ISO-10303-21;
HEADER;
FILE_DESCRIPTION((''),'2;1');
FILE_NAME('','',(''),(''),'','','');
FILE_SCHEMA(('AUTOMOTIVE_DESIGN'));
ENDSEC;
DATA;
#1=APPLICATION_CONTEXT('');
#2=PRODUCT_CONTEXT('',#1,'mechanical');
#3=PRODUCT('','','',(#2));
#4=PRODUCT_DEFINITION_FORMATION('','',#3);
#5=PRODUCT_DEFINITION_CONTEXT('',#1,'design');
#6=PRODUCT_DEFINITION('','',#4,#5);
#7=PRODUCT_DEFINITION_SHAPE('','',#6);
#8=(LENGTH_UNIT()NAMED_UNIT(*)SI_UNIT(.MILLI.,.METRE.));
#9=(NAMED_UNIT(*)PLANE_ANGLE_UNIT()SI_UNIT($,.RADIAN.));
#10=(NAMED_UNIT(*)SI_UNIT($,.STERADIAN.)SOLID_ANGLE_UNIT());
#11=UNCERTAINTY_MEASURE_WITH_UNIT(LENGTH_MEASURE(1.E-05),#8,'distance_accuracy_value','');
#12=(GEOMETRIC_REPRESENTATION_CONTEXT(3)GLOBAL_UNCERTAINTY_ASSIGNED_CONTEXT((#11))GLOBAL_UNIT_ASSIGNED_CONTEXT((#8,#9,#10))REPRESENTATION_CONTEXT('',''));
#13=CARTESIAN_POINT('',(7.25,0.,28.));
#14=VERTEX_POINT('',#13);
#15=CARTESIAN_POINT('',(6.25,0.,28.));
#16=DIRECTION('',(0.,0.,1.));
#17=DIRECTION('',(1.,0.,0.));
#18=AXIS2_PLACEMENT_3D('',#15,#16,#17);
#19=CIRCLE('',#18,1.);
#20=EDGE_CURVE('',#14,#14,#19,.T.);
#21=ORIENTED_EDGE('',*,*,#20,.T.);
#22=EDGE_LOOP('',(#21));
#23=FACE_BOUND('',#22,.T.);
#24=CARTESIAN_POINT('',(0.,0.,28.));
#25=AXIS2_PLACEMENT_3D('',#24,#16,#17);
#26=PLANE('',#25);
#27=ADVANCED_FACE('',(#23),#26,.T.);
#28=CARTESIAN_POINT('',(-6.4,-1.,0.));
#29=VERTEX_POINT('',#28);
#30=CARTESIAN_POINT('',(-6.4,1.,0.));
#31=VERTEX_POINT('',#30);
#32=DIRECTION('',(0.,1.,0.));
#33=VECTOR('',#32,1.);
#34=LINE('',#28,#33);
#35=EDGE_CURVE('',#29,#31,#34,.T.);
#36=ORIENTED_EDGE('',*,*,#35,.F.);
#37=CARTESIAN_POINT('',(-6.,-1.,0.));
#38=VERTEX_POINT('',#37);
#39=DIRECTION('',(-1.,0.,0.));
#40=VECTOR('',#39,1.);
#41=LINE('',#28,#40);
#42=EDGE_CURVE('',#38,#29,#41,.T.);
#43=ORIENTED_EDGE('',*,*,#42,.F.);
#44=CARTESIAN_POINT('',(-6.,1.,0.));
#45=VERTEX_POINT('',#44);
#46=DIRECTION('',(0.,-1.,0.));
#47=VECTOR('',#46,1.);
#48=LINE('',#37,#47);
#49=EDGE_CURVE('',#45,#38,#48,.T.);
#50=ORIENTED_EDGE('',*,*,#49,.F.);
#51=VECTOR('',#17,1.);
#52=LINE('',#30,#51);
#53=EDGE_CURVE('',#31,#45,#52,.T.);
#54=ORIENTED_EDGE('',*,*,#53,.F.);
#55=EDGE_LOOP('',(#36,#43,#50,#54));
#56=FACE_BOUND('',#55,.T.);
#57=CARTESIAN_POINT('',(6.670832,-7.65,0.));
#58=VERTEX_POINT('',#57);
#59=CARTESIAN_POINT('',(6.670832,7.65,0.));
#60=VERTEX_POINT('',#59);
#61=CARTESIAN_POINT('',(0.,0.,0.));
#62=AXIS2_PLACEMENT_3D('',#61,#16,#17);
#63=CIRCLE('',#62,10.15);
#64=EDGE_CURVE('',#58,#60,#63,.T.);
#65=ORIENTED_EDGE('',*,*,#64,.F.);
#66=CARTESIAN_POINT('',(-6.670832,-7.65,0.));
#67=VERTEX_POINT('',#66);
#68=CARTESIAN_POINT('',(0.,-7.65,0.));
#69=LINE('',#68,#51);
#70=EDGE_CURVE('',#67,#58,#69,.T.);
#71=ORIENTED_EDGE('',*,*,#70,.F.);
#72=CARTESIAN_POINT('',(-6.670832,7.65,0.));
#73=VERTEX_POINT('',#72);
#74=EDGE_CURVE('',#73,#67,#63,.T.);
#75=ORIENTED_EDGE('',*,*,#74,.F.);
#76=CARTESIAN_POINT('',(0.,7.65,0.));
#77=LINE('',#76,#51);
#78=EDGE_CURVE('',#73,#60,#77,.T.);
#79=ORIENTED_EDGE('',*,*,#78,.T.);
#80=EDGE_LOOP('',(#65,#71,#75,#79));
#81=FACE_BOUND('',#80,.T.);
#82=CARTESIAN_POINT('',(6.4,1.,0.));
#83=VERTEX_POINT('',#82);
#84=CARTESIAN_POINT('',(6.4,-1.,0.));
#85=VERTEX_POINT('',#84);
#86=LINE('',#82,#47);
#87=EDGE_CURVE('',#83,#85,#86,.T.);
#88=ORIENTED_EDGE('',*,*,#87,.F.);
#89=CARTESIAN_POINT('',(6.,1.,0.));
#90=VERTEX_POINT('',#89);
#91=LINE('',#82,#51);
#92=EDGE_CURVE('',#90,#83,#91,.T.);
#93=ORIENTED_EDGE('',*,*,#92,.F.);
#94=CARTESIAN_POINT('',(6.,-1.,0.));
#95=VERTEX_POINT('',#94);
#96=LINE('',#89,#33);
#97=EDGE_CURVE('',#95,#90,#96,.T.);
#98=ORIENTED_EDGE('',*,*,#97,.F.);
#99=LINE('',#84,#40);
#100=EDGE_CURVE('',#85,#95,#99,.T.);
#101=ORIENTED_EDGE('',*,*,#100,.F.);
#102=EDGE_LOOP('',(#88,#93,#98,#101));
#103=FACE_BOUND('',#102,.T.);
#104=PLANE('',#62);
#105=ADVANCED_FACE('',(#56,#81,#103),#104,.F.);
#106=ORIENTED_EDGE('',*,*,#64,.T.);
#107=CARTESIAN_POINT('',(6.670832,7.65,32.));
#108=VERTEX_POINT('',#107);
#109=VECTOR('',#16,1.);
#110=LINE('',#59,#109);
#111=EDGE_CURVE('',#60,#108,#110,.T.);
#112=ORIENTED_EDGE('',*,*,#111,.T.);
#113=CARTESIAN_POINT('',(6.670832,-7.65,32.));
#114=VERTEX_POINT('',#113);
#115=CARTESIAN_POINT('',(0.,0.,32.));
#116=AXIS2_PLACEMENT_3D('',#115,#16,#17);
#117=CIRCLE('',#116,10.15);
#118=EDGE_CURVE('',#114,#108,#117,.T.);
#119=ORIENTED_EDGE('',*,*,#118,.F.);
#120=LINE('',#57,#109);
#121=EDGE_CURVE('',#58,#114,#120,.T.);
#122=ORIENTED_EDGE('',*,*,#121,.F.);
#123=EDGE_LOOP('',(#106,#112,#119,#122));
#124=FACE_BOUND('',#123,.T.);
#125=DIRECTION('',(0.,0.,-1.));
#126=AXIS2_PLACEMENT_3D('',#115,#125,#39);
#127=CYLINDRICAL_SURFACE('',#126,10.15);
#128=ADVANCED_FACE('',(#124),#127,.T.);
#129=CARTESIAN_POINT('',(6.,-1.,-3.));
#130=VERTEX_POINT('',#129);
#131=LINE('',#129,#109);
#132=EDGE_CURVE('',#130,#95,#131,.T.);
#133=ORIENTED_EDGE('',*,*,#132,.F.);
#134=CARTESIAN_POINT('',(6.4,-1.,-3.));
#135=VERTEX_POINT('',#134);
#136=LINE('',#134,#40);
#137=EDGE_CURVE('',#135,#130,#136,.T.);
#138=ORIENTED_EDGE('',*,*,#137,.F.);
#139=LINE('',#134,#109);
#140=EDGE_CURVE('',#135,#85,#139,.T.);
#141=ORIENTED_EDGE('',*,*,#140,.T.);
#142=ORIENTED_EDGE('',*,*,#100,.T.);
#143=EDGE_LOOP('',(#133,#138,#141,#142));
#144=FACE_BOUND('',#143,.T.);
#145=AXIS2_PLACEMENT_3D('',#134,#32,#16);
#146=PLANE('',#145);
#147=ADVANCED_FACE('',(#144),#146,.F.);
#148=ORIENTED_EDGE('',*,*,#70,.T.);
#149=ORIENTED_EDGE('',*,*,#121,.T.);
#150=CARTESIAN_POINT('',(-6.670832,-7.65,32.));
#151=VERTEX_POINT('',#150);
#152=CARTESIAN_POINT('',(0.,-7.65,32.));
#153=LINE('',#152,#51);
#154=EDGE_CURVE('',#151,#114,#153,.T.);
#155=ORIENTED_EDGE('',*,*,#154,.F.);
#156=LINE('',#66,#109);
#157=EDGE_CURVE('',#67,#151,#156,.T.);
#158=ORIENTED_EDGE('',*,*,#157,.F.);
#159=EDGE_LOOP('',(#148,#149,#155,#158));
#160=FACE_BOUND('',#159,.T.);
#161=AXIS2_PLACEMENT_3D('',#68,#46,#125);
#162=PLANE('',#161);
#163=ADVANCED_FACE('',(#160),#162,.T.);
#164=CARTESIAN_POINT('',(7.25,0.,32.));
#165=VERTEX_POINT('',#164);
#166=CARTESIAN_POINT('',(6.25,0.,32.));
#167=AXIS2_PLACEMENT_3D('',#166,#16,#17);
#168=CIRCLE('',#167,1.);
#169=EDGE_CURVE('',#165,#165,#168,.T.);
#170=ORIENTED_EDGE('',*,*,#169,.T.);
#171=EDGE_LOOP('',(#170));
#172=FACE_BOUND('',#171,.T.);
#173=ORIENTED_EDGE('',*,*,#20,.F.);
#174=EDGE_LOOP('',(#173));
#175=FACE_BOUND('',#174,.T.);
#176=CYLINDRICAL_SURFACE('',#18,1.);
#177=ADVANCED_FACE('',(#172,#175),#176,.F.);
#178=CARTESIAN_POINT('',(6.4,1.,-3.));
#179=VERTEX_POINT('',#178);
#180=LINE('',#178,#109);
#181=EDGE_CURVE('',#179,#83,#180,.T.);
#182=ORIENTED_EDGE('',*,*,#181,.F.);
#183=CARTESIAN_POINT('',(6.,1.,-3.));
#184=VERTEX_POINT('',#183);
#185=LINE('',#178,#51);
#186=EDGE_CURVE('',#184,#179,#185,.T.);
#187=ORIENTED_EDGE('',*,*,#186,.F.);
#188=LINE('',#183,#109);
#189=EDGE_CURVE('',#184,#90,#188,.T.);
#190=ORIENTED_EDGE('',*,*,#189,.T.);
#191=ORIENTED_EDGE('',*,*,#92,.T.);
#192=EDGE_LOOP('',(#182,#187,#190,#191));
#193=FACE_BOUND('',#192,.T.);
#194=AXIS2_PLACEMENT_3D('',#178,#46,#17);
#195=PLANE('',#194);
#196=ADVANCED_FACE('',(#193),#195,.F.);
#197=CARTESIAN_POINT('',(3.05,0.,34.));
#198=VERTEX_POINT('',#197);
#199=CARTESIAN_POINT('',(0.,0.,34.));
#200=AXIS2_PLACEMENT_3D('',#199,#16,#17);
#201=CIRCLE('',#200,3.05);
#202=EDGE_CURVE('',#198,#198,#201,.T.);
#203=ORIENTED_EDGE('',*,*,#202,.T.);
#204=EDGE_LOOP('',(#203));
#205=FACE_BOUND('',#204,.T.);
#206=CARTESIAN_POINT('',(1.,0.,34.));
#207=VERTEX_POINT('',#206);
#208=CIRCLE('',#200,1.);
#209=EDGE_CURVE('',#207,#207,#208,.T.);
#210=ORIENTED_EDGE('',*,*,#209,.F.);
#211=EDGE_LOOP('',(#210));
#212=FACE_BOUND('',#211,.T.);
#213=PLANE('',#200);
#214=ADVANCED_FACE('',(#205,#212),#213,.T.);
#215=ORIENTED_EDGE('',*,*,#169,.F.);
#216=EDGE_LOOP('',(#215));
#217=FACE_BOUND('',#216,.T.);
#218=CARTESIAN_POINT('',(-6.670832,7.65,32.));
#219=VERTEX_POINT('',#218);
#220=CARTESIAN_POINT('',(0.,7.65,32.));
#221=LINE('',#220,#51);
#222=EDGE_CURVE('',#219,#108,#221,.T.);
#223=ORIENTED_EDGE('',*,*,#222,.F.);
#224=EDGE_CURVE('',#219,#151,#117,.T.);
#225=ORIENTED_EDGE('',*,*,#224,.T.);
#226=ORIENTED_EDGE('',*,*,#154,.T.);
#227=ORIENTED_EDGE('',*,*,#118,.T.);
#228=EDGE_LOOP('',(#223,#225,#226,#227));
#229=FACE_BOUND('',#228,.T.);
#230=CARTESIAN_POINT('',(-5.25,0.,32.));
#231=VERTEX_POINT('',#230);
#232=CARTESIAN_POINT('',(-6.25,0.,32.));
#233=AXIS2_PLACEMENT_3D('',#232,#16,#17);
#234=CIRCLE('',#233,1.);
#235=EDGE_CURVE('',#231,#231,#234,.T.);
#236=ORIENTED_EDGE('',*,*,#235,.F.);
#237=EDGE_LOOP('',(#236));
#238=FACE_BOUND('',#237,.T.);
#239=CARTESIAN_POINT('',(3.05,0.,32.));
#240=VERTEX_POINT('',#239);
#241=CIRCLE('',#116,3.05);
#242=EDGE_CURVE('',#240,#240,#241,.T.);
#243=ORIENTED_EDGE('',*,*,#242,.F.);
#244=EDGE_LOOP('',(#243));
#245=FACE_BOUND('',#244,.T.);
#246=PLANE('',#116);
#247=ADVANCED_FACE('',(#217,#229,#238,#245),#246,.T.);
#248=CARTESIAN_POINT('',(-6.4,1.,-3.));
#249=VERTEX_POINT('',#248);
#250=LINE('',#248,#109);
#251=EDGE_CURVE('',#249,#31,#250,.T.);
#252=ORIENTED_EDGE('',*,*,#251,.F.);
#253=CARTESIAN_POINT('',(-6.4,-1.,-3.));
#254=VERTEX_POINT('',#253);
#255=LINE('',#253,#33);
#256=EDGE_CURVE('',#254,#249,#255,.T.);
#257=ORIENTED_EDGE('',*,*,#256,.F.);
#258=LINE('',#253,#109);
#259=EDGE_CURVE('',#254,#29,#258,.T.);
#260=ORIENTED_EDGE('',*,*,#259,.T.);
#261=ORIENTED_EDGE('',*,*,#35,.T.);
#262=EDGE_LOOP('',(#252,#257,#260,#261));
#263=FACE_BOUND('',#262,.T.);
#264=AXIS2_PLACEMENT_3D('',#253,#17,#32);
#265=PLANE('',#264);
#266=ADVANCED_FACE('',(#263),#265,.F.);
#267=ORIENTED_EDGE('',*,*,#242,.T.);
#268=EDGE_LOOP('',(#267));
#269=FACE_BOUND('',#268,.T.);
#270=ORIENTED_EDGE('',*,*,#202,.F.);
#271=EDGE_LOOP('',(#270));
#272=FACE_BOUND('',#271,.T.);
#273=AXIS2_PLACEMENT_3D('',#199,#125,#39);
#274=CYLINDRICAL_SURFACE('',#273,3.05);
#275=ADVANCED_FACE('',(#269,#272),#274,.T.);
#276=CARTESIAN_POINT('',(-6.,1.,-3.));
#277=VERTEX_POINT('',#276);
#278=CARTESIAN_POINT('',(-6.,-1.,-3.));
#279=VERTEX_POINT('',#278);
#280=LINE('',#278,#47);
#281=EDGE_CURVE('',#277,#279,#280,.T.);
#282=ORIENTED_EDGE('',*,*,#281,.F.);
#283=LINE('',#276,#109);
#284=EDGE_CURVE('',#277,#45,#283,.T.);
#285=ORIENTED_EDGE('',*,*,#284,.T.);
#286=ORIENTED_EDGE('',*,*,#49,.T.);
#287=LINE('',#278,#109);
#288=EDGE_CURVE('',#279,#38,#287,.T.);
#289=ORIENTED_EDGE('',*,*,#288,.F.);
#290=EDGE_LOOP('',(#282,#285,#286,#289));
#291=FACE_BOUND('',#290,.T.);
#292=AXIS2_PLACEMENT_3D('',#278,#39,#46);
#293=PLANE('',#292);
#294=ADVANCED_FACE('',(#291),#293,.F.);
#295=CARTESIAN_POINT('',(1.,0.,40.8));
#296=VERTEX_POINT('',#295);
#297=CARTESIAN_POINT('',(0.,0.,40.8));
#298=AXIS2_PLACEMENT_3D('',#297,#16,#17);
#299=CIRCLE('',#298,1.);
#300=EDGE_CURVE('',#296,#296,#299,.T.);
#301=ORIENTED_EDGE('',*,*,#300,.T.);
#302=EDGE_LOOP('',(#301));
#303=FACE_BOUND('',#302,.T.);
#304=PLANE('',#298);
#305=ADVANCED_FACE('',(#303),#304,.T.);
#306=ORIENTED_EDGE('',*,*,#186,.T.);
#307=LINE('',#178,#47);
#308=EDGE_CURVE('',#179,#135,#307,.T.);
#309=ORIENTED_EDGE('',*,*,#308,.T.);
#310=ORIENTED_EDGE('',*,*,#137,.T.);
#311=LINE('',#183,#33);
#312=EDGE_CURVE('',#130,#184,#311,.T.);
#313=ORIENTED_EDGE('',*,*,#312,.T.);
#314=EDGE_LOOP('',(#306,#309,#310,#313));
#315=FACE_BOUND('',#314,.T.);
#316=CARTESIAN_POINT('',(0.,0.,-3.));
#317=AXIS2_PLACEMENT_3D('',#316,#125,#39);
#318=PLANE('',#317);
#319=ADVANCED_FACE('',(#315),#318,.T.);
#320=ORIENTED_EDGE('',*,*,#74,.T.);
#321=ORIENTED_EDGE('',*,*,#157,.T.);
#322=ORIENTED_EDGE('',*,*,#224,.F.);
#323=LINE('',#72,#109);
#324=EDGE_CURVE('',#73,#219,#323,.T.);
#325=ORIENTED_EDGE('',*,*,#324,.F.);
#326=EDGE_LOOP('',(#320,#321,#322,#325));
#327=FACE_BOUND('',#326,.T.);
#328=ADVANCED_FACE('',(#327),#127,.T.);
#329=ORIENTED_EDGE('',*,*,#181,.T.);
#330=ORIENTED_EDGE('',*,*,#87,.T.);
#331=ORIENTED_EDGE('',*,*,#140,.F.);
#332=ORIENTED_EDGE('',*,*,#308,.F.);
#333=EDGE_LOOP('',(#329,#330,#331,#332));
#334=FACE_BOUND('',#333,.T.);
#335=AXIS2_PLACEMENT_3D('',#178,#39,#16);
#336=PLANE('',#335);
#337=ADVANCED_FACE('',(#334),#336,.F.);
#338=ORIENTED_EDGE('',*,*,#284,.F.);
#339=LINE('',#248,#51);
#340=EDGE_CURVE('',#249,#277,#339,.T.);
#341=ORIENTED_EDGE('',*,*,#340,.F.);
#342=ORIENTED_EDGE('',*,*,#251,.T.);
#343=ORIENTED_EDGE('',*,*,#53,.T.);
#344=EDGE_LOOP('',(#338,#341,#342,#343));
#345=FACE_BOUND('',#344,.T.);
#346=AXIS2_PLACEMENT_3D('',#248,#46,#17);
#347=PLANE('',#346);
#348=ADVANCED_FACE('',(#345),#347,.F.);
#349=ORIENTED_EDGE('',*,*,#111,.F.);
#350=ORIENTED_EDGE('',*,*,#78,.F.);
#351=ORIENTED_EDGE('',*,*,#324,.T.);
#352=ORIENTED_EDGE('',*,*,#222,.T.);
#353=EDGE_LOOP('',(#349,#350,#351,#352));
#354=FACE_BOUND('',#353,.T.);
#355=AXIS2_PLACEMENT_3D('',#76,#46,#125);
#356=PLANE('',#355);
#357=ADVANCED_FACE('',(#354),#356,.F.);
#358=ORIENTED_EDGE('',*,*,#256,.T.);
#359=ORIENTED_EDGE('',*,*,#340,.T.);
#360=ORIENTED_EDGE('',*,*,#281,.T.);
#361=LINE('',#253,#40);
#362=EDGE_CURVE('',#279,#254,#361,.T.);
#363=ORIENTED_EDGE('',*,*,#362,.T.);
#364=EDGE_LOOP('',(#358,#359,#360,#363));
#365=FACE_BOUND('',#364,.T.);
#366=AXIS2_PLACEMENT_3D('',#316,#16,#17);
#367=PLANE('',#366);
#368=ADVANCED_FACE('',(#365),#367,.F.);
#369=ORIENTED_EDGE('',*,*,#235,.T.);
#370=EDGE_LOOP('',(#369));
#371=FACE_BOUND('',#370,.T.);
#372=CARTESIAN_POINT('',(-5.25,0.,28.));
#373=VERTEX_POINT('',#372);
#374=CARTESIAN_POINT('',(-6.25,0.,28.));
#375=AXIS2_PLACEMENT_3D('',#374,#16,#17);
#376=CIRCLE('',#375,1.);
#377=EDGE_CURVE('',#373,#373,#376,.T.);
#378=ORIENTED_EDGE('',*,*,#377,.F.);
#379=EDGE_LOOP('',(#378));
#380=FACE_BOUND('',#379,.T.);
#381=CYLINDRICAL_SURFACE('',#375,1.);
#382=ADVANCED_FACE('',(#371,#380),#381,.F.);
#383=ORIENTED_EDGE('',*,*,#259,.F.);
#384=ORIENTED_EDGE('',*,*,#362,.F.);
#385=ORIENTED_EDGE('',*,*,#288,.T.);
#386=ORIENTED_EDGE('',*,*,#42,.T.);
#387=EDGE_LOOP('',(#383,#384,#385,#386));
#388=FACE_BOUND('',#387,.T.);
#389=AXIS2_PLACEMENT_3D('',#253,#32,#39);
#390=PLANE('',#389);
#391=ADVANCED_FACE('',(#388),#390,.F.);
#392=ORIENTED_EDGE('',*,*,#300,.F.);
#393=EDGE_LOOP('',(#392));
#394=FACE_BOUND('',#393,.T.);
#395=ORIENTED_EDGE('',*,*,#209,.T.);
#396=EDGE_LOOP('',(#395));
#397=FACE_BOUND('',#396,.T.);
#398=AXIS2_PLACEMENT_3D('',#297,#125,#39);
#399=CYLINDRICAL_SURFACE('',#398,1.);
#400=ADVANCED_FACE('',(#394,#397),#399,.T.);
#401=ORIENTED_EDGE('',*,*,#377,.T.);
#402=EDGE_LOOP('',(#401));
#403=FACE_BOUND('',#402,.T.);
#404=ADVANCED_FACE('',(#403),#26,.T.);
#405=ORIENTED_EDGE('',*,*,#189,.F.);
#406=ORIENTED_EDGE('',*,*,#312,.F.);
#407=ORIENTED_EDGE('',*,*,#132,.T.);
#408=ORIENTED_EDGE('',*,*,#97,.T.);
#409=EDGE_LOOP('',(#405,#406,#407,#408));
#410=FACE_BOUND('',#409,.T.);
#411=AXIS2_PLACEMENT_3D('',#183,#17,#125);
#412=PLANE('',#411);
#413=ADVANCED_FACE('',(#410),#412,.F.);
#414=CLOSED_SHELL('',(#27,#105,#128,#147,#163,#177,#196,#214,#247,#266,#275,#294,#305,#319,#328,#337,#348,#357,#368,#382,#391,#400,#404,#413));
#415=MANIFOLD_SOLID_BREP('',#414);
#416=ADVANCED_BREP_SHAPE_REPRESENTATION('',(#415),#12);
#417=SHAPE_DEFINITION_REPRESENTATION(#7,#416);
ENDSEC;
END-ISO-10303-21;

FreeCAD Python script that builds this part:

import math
import FreeCAD as App
import Part
import Sketcher

doc = App.newDocument("Part")
body = doc.addObject("PartDesign::Body", "Body")

# Sketch on XY plane
sketch1 = doc.addObject("Sketcher::SketchObject", "Sketch")
body.addObject(sketch1)
sketch1.AttachmentSupport = (doc.XY_Plane, [""])
sketch1.MapMode = "FlatFace"
sketch1.addGeometry(Part.Circle(App.Vector(0, 0, 0), App.Vector(0, 0, 1), 10.15), False)
sketch1.addConstraint(Sketcher.Constraint("Coincident", 0, 3, -1, 1))
sketch1.addConstraint(Sketcher.Constraint("Diameter", 0, 20.3))
pad1 = doc.addObject("PartDesign::Pad", "Pad")
body.addObject(pad1)
pad1.Profile = sketch1
pad1.Length = 32

# Sketch on XY plane
sketch2 = doc.addObject("Sketcher::SketchObject", "Sketch001")
body.addObject(sketch2)
sketch2.AttachmentSupport = (doc.XY_Plane, [""])
sketch2.MapMode = "FlatFace"
sketch2.AttachmentOffset = App.Placement(App.Vector(0, 0, 32), App.Rotation())
sketch2.addGeometry(Part.ArcOfCircle(Part.Circle(App.Vector(0, 0, 0), App.Vector(0, 0, 1), 10.15), math.radians(48.911436), math.radians(131.088564)), False)
sketch2.addGeometry(Part.LineSegment(App.Vector(-6.670832, 7.65, 0), App.Vector(6.670832, 7.65, 0)), False)
sketch2.addGeometry(Part.LineSegment(App.Vector(6.670832, -7.65, 0), App.Vector(-6.670832, -7.65, 0)), False)
sketch2.addGeometry(Part.ArcOfCircle(Part.Circle(App.Vector(0, 0, 0), App.Vector(0, 0, 1), 10.15), math.radians(-131.088564), math.radians(-48.911436)), False)
sketch2.addConstraint(Sketcher.Constraint("Coincident", 0, 1, 1, 2))
sketch2.addConstraint(Sketcher.Constraint("Coincident", 1, 1, 0, 2))
sketch2.addConstraint(Sketcher.Constraint("Coincident", 2, 1, 3, 2))
sketch2.addConstraint(Sketcher.Constraint("Coincident", 3, 1, 2, 2))
sketch2.addConstraint(Sketcher.Constraint("Horizontal", 1))
sketch2.addConstraint(Sketcher.Constraint("Horizontal", 2))
sketch2.addConstraint(Sketcher.Constraint("Coincident", 0, 3, -1, 1))
sketch2.addConstraint(Sketcher.Constraint("Coincident", 3, 3, -1, 1))
sketch2.addConstraint(Sketcher.Constraint("Equal", 0, 3))
sketch2.addConstraint(Sketcher.Constraint("Vertical", 0, 1, 2, 1))
sketch2.addConstraint(Sketcher.Constraint("Radius", 0, 10.15))
sketch2.addConstraint(Sketcher.Constraint("DistanceY", 2, 1, 0, 1, 15.3))
pocket1 = doc.addObject("PartDesign::Pocket", "Pocket")
body.addObject(pocket1)
pocket1.Profile = sketch2
pocket1.Type = "ThroughAll"

# Sketch on XY plane
sketch3 = doc.addObject("Sketcher::SketchObject", "Sketch002")
body.addObject(sketch3)
sketch3.AttachmentSupport = (doc.XY_Plane, [""])
sketch3.MapMode = "FlatFace"
sketch3.addGeometry(Part.LineSegment(App.Vector(-6, 1, 0), App.Vector(-6, -1, 0)), False)
sketch3.addGeometry(Part.LineSegment(App.Vector(-6, -1, 0), App.Vector(-6.4, -1, 0)), False)
sketch3.addGeometry(Part.LineSegment(App.Vector(-6.4, -1, 0), App.Vector(-6.4, 1, 0)), False)
sketch3.addGeometry(Part.LineSegment(App.Vector(-6.4, 1, 0), App.Vector(-6, 1, 0)), False)
sketch3.addGeometry(Part.LineSegment(App.Vector(6.4, 1, 0), App.Vector(6.4, -1, 0)), False)
sketch3.addGeometry(Part.LineSegment(App.Vector(6.4, -1, 0), App.Vector(6, -1, 0)), False)
sketch3.addGeometry(Part.LineSegment(App.Vector(6, -1, 0), App.Vector(6, 1, 0)), False)
sketch3.addGeometry(Part.LineSegment(App.Vector(6, 1, 0), App.Vector(6.4, 1, 0)), False)
sketch3.addConstraint(Sketcher.Constraint("Coincident", 0, 2, 1, 1))
sketch3.addConstraint(Sketcher.Constraint("Coincident", 1, 2, 2, 1))
sketch3.addConstraint(Sketcher.Constraint("Coincident", 2, 2, 3, 1))
sketch3.addConstraint(Sketcher.Constraint("Coincident", 3, 2, 0, 1))
sketch3.addConstraint(Sketcher.Constraint("Coincident", 4, 2, 5, 1))
sketch3.addConstraint(Sketcher.Constraint("Coincident", 5, 2, 6, 1))
sketch3.addConstraint(Sketcher.Constraint("Coincident", 6, 2, 7, 1))
sketch3.addConstraint(Sketcher.Constraint("Coincident", 7, 2, 4, 1))
sketch3.addConstraint(Sketcher.Constraint("Vertical", 0))
sketch3.addConstraint(Sketcher.Constraint("Horizontal", 1))
sketch3.addConstraint(Sketcher.Constraint("Vertical", 2))
sketch3.addConstraint(Sketcher.Constraint("Horizontal", 3))
sketch3.addConstraint(Sketcher.Constraint("Vertical", 4))
sketch3.addConstraint(Sketcher.Constraint("Horizontal", 5))
sketch3.addConstraint(Sketcher.Constraint("Vertical", 6))
sketch3.addConstraint(Sketcher.Constraint("Horizontal", 7))
sketch3.addConstraint(Sketcher.Constraint("Symmetric", 2, 2, 4, 2, -1, 1))
sketch3.addConstraint(Sketcher.Constraint("Symmetric", 0, 2, 6, 2, -1, 1))
sketch3.addConstraint(Sketcher.Constraint("Horizontal", 1, 2, 4, 2))
sketch3.addConstraint(Sketcher.Constraint("DistanceY", 0, 2, 0, 1, 2.0))
sketch3.addConstraint(Sketcher.Constraint("DistanceX", 1, 2, 1, 1, 0.4))
sketch3.addConstraint(Sketcher.Constraint("DistanceX", 0, 2, -1, 1, 6.0))
pad2 = doc.addObject("PartDesign::Pad", "Pad001")
body.addObject(pad2)
pad2.Profile = sketch3
pad2.Length = 3
pad2.Reversed = True

# Sketch on XY plane
sketch4 = doc.addObject("Sketcher::SketchObject", "Sketch003")
body.addObject(sketch4)
sketch4.AttachmentSupport = (doc.XY_Plane, [""])
sketch4.MapMode = "FlatFace"
sketch4.AttachmentOffset = App.Placement(App.Vector(0, 0, 32), App.Rotation())
sketch4.addGeometry(Part.Circle(App.Vector(-6.25, 0, 0), App.Vector(0, 0, 1), 1), False)
sketch4.addGeometry(Part.Circle(App.Vector(6.25, 0, 0), App.Vector(0, 0, 1), 1), False)
sketch4.addConstraint(Sketcher.Constraint("Equal", 0, 1))
sketch4.addConstraint(Sketcher.Constraint("Symmetric", 0, 3, 1, 3, -1, 1))
sketch4.addConstraint(Sketcher.Constraint("PointOnObject", 0, 3, -1))
sketch4.addConstraint(Sketcher.Constraint("Diameter", 0, 2.0))
sketch4.addConstraint(Sketcher.Constraint("DistanceX", 0, 3, 1, 3, 12.5))
pocket2 = doc.addObject("PartDesign::Pocket", "Pocket001")
body.addObject(pocket2)
pocket2.Profile = sketch4
pocket2.Length = 4

# Sketch on XY plane
sketch5 = doc.addObject("Sketcher::SketchObject", "Sketch004")
body.addObject(sketch5)
sketch5.AttachmentSupport = (doc.XY_Plane, [""])
sketch5.MapMode = "FlatFace"
sketch5.AttachmentOffset = App.Placement(App.Vector(0, 0, 32), App.Rotation())
sketch5.addGeometry(Part.Circle(App.Vector(0, 0, 0), App.Vector(0, 0, 1), 3.05), False)
sketch5.addConstraint(Sketcher.Constraint("Coincident", 0, 3, -1, 1))
sketch5.addConstraint(Sketcher.Constraint("Diameter", 0, 6.1))
pad3 = doc.addObject("PartDesign::Pad", "Pad002")
body.addObject(pad3)
pad3.Profile = sketch5
pad3.Length = 2

# Sketch on XY plane
sketch6 = doc.addObject("Sketcher::SketchObject", "Sketch005")
body.addObject(sketch6)
sketch6.AttachmentSupport = (doc.XY_Plane, [""])
sketch6.MapMode = "FlatFace"
sketch6.AttachmentOffset = App.Placement(App.Vector(0, 0, 34), App.Rotation())
sketch6.addGeometry(Part.Circle(App.Vector(0, 0, 0), App.Vector(0, 0, 1), 1), False)
sketch6.addConstraint(Sketcher.Constraint("Coincident", 0, 3, -1, 1))
sketch6.addConstraint(Sketcher.Constraint("Diameter", 0, 2.0))
pad4 = doc.addObject("PartDesign::Pad", "Pad003")
body.addObject(pad4)
pad4.Profile = sketch6
pad4.Length = 6.8

doc.recompute()
